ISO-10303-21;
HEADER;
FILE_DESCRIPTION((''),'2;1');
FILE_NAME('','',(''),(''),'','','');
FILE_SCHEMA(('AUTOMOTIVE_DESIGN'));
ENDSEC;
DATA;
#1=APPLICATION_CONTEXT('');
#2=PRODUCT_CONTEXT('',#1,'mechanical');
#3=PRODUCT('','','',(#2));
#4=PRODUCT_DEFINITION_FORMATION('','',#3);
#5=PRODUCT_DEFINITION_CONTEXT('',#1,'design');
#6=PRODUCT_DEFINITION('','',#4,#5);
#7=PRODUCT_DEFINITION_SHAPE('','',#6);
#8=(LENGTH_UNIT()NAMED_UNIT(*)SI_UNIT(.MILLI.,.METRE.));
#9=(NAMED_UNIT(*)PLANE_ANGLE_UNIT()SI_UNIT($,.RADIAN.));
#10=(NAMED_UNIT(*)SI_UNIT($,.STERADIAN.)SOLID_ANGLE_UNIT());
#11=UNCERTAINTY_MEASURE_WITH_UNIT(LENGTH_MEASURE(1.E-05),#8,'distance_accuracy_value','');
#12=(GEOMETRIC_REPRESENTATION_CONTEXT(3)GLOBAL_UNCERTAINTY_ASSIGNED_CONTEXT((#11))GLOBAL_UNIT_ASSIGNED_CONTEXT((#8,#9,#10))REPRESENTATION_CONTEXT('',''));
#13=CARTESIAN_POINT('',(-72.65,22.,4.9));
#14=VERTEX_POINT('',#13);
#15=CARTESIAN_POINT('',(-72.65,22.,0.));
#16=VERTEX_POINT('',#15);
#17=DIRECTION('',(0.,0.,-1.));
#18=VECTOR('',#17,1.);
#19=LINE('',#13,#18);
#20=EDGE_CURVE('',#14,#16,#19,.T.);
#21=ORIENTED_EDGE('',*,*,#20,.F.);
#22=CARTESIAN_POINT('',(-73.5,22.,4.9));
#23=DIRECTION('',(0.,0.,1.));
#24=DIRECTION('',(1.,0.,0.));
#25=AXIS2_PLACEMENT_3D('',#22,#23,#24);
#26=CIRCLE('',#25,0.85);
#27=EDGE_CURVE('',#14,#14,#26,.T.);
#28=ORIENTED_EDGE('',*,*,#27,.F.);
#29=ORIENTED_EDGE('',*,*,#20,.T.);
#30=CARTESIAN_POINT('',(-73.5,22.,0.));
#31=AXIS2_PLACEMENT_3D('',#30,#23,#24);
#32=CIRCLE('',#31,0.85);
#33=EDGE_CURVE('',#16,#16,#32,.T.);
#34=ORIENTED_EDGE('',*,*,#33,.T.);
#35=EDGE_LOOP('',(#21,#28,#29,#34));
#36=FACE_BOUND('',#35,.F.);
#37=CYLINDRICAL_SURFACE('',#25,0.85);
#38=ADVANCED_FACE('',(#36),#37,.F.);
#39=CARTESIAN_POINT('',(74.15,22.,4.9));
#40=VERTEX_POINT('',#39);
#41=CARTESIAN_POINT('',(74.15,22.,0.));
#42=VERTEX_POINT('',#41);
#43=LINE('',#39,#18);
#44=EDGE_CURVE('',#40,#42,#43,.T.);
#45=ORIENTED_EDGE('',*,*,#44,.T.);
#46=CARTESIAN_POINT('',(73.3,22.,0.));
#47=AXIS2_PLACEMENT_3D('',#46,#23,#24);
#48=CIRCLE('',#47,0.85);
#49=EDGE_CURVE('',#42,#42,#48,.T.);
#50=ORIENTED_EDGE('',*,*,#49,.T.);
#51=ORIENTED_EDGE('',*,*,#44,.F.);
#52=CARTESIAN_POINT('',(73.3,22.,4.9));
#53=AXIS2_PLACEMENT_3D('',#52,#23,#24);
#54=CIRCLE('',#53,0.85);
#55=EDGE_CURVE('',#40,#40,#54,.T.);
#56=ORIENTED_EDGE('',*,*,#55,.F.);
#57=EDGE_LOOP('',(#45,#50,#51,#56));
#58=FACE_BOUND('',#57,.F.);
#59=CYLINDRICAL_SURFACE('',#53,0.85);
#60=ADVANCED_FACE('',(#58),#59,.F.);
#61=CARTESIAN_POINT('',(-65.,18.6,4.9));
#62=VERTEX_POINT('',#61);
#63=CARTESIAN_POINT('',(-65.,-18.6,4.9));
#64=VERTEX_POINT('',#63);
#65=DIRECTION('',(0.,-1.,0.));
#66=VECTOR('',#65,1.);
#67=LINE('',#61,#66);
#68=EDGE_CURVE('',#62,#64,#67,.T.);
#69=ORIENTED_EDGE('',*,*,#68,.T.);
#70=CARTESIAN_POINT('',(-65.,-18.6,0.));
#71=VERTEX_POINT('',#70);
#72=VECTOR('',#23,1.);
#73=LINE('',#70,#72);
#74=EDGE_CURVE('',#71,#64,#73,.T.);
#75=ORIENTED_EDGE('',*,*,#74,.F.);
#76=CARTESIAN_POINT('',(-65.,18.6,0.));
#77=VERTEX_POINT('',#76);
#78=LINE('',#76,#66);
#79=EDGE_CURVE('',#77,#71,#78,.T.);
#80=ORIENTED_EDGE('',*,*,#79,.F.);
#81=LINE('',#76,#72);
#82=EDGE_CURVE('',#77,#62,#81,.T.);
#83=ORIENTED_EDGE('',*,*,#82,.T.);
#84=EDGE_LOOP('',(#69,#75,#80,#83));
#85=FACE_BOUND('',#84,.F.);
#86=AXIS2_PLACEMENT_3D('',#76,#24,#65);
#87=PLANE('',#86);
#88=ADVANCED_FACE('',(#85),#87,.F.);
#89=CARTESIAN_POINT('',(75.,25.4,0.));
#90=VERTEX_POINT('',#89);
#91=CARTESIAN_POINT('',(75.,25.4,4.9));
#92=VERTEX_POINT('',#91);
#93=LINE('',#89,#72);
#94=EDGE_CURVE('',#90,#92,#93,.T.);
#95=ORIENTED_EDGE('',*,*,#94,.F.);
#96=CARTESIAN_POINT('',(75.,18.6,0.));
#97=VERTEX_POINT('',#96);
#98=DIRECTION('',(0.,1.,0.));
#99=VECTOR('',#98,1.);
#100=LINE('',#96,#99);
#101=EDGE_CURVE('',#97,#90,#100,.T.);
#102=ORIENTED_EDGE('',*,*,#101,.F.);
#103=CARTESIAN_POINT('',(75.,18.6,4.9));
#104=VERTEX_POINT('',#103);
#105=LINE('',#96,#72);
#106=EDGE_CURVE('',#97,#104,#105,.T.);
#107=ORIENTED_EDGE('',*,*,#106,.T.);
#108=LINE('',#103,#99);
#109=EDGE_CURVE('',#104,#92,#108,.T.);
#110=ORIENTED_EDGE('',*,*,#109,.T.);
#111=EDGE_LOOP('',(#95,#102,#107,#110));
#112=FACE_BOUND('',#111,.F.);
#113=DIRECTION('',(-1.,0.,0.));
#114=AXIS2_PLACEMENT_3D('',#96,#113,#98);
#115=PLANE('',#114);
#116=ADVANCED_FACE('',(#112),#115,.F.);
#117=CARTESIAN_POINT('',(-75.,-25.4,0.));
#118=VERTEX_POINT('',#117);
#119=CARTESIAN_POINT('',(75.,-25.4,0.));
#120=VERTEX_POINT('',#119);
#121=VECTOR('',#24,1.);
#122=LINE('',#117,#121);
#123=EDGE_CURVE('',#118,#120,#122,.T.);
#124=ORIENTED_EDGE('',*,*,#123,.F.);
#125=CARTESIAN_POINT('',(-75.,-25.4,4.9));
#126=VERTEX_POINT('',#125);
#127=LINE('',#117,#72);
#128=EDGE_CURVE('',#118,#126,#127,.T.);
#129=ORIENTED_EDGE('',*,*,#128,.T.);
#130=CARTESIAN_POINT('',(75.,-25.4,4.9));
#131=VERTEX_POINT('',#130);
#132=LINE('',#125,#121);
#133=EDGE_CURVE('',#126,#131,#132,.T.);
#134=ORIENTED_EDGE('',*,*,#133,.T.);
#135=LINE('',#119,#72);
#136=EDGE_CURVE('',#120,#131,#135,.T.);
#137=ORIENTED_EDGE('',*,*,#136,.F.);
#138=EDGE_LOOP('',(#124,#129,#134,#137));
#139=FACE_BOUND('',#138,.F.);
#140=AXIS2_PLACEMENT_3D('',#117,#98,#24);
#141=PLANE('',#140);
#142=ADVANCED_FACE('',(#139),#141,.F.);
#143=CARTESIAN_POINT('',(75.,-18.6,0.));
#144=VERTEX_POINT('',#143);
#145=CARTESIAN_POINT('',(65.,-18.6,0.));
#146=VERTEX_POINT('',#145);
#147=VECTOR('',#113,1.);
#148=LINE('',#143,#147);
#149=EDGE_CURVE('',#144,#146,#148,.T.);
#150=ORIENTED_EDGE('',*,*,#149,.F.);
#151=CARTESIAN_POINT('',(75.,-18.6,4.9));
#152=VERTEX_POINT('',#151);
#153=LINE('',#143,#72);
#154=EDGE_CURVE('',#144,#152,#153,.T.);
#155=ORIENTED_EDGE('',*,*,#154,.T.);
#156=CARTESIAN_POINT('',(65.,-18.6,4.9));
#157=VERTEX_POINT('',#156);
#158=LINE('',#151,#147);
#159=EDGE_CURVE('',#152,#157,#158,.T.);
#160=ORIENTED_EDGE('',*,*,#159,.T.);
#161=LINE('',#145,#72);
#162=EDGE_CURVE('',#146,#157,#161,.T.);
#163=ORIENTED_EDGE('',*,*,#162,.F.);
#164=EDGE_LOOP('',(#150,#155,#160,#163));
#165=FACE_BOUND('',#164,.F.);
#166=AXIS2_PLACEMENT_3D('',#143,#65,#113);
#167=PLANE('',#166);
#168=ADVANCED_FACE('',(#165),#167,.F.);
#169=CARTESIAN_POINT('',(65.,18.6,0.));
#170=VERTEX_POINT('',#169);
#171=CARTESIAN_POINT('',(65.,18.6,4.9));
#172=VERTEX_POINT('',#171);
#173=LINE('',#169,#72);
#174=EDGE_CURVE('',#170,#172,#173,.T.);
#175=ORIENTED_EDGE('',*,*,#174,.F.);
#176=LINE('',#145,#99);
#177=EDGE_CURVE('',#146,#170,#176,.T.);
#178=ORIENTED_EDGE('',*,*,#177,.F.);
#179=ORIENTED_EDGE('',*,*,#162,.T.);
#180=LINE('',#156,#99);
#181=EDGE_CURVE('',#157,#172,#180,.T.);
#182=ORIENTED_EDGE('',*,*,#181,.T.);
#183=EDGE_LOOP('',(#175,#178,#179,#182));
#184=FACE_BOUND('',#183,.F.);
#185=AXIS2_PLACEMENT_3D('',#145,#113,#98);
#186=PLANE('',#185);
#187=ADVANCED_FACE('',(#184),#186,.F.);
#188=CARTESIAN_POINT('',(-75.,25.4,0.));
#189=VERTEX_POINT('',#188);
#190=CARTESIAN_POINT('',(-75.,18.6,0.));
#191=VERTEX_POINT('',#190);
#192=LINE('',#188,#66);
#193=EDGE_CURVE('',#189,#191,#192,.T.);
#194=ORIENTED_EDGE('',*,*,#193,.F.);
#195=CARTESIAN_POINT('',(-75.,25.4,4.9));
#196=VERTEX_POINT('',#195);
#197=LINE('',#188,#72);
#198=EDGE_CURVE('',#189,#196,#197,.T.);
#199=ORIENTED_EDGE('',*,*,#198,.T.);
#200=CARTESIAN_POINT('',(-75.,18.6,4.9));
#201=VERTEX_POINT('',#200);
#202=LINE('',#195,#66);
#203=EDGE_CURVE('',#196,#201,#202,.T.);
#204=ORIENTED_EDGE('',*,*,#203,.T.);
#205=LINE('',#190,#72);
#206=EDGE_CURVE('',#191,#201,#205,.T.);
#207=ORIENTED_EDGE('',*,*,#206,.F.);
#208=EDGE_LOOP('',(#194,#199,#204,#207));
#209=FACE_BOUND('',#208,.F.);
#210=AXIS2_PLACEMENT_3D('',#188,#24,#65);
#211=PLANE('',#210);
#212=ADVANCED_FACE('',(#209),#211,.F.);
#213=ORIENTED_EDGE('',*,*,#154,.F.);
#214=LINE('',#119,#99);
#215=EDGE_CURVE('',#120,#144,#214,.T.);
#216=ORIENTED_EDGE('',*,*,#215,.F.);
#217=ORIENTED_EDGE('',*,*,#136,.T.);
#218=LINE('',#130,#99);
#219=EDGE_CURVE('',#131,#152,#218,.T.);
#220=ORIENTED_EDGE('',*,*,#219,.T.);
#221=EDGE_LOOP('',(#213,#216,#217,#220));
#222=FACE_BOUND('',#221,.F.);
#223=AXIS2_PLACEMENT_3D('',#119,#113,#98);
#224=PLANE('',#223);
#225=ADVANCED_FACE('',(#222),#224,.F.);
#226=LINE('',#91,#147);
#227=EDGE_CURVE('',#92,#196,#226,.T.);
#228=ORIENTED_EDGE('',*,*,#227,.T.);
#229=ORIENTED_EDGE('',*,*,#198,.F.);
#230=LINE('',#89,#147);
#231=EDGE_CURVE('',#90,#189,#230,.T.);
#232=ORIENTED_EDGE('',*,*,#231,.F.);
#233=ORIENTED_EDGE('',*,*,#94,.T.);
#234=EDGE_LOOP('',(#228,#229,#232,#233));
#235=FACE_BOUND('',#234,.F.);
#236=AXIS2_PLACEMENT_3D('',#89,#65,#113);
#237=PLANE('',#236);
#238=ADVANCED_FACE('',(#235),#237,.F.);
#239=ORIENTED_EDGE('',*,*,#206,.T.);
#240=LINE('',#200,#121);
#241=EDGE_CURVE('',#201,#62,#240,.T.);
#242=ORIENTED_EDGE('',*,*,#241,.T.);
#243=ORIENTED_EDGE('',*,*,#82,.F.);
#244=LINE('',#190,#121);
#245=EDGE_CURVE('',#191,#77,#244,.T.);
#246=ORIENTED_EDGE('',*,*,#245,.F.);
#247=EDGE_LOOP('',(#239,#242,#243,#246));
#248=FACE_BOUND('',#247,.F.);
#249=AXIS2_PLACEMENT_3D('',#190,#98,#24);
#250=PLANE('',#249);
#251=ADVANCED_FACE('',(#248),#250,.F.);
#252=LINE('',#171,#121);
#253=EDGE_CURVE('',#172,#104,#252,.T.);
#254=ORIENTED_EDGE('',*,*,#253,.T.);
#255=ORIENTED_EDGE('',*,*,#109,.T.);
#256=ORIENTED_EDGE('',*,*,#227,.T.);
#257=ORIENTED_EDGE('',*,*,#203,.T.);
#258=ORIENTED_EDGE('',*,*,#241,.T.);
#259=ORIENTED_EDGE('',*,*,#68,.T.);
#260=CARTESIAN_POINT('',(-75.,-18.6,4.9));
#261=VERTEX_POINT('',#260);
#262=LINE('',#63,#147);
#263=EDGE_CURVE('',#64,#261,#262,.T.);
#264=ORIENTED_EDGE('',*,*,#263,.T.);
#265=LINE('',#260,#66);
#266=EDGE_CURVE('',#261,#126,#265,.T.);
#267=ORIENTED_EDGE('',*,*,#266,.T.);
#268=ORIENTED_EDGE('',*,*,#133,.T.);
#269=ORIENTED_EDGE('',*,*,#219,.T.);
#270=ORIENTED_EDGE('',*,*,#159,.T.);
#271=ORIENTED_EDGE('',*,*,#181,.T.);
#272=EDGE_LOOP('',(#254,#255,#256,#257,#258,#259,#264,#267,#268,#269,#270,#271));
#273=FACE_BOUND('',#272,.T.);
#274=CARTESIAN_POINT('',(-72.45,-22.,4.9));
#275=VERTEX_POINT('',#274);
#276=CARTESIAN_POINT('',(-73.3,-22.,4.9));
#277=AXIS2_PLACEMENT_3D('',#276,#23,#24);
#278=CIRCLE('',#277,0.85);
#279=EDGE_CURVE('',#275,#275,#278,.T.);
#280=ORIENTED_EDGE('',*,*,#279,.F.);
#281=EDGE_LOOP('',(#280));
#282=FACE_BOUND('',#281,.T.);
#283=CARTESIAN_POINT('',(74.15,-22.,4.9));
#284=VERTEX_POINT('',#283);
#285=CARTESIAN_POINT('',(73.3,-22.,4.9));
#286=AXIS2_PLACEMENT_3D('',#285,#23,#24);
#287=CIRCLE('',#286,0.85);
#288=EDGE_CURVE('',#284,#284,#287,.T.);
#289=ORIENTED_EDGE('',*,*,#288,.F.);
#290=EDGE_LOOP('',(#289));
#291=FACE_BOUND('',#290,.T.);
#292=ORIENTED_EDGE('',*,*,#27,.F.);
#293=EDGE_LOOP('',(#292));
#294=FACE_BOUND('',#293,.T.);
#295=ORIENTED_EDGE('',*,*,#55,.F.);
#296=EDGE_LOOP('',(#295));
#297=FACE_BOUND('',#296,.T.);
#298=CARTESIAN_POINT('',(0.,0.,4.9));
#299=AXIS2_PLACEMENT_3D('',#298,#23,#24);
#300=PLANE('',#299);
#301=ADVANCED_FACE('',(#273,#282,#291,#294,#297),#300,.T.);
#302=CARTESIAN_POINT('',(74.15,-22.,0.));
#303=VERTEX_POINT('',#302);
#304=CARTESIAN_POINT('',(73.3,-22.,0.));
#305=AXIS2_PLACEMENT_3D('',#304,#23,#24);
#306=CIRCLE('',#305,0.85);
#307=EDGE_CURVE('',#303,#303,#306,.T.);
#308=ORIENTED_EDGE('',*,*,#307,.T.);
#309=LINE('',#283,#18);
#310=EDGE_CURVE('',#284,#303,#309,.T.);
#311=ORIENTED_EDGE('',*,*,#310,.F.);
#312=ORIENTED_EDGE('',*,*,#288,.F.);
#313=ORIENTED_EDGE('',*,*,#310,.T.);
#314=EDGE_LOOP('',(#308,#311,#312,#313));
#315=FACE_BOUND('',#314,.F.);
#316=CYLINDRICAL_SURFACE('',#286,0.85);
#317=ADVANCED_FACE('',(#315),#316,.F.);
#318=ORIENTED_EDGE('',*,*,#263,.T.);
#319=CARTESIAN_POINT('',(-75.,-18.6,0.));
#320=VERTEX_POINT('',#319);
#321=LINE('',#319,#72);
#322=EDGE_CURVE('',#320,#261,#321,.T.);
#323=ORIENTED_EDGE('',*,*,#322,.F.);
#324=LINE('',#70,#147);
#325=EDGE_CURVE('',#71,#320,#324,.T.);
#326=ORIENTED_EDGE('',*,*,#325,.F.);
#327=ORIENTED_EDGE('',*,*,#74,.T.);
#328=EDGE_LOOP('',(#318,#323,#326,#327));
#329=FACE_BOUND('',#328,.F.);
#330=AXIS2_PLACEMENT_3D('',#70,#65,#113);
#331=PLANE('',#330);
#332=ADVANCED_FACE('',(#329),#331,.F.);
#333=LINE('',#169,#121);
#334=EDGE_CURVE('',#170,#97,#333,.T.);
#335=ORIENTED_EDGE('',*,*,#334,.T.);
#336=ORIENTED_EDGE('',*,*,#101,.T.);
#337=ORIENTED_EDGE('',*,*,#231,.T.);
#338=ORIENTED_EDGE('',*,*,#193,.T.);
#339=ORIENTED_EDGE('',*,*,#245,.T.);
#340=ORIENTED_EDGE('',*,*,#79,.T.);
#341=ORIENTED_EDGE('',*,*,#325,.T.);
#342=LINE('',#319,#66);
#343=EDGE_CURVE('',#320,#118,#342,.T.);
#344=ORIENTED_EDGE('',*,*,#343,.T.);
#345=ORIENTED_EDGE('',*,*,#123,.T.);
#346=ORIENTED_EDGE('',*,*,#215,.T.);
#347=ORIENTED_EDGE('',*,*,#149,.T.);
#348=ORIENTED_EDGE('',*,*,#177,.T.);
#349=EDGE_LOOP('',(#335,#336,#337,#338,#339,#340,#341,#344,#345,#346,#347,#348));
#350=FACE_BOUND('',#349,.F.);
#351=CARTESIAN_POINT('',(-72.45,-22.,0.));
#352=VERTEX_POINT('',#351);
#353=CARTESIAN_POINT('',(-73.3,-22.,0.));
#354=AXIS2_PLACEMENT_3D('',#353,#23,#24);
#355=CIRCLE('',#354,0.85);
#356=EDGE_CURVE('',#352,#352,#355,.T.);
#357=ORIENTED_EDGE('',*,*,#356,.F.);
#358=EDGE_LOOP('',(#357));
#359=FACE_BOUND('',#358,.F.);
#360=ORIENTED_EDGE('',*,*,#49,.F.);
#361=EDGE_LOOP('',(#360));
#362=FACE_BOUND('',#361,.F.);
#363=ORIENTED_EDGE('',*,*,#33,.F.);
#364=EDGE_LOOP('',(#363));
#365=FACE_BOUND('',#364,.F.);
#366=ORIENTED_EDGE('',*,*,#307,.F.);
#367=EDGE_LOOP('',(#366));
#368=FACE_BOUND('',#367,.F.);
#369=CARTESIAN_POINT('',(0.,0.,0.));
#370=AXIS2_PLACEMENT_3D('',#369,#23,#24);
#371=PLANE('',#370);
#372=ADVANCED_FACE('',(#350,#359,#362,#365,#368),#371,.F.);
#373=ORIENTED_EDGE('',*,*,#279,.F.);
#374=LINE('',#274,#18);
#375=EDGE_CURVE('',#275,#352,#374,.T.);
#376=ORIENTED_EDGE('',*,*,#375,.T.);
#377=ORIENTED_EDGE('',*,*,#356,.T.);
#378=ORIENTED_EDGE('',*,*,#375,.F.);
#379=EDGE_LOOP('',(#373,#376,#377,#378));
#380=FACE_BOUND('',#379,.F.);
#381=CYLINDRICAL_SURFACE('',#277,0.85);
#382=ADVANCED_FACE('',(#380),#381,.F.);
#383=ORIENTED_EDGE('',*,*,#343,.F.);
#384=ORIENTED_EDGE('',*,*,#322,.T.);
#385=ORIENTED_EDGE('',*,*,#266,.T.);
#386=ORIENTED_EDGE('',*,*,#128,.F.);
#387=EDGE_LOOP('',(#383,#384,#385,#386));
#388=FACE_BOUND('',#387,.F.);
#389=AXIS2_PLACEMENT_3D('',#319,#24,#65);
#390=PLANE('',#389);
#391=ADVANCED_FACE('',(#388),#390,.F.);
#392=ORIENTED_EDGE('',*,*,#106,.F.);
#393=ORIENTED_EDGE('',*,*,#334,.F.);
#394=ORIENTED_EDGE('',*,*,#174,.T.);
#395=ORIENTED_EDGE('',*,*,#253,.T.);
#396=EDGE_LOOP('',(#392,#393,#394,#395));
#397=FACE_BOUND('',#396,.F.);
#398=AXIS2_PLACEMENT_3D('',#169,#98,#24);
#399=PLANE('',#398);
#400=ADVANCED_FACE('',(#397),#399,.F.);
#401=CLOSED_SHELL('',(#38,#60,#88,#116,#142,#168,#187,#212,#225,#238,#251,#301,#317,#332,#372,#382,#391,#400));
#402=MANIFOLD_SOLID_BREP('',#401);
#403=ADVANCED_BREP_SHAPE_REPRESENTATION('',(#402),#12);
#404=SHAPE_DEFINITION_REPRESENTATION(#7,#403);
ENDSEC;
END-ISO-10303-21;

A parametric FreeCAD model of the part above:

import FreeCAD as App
import Part
import Sketcher
from FreeCAD import Vector
Q = App.Units.Quantity


def add_polygon(sketch, points):
    """Adds a closed chain of lines whose ends are joined by coincident constraints."""
    first, n = sketch.GeometryCount, len(points)
    for a, b in zip(points, points[1:] + points[:1]):
        sketch.addGeometry(Part.LineSegment(App.Vector(*a, 0), App.Vector(*b, 0)), False)
    for i in range(n):
        sketch.addConstraint(Sketcher.Constraint("Coincident", first + i, 2, first + (i + 1) % n, 1))

doc = App.newDocument("Part")
body = doc.addObject("PartDesign::Body", "Body")

sketch1 = doc.addObject("Sketcher::SketchObject", "Sketch")
body.addObject(sketch1)
sketch1.AttachmentSupport = (doc.XY_Plane, [""])
sketch1.MapMode = "FlatFace"
add_polygon(sketch1, [(-75, -25), (75, -25), (75, -19), (65, -19), (65, 19), (75, 19), (75, 25), (-75, 25), (-75, 19), (-65, 19), (-65, -19), (-75, -19)])
sketch1.addConstraint([
    Sketcher.Constraint("Horizontal", 0),
    Sketcher.Constraint("Vertical", 1),
    Sketcher.Constraint("Horizontal", 2),
    Sketcher.Constraint("Vertical", 3),
    Sketcher.Constraint("Horizontal", 4),
    Sketcher.Constraint("Vertical", 5),
    Sketcher.Constraint("Horizontal", 6),
    Sketcher.Constraint("Vertical", 7),
    Sketcher.Constraint("Horizontal", 8),
    Sketcher.Constraint("Vertical", 9),
    Sketcher.Constraint("Horizontal", 10),
    Sketcher.Constraint("Vertical", 11),
    Sketcher.Constraint("Symmetric", 0, 2, 6, 2, -1, 1),
    Sketcher.Constraint("Symmetric", 2, 2, 8, 2, -1, 1),
    Sketcher.Constraint("Symmetric", 4, 2, 10, 2, -1, 1),
    Sketcher.Constraint("Symmetric", 4, 2, 7, 2, -2),
    Sketcher.Constraint("DistanceX", 0, 1, 0, 2, Q("150 mm")),
    Sketcher.Constraint("DistanceX", 2, 2, 2, 1, Q("10 mm")),
    Sketcher.Constraint("DistanceY", 1, 1, 1, 2, Q("6.8 mm")),
    Sketcher.Constraint("DistanceY", 3, 1, 3, 2, Q("37.2 mm")),
])
pad1 = doc.addObject("PartDesign::Pad", "Pad")
body.addObject(pad1)
pad1.Profile = sketch1
pad1.Length = 4.9

sketch2 = doc.addObject("Sketcher::SketchObject", "Sketch001")
body.addObject(sketch2)
sketch2.AttachmentSupport = (doc.XY_Plane, [""])
sketch2.MapMode = "FlatFace"
sketch2.AttachmentOffset = App.Placement(Vector(0, 0, 4.9), App.Rotation())
sketch2.addGeometry([
    Part.Circle(Vector(-73.5, 22, 0), Vector(0, 0, 1), 0.8),
    Part.Circle(Vector(-73.3, -22, 0), Vector(0, 0, 1), 0.8),
    Part.Circle(Vector(73.3, 22, 0), Vector(0, 0, 1), 0.8),
    Part.Circle(Vector(73.3, -22, 0), Vector(0, 0, 1), 0.8),
], False)
sketch2.addConstraint([
    Sketcher.Constraint("Equal", 0, 1),
    Sketcher.Constraint("Equal", 1, 2),
    Sketcher.Constraint("Equal", 2, 3),
    Sketcher.Constraint("Symmetric", 1, 3, 2, 3, -1, 1),
    Sketcher.Constraint("Symmetric", 1, 3, 3, 3, -2),
    Sketcher.Constraint("Horizontal", 0, 3, 2, 3),
    Sketcher.Constraint("Diameter", 0, Q("1.7 mm")),
    Sketcher.Constraint("DistanceY", -1, 1, 0, 3, Q("22 mm")),
    Sketcher.Constraint("DistanceX", 0, 3, -1, 1, Q("73.5 mm")),
    Sketcher.Constraint("DistanceX", 1, 3, -1, 1, Q("73.3 mm")),
])
pocket1 = doc.addObject("PartDesign::Pocket", "Pocket")
body.addObject(pocket1)
pocket1.Profile = sketch2
pocket1.Type = "ThroughAll"

doc.recompute()
